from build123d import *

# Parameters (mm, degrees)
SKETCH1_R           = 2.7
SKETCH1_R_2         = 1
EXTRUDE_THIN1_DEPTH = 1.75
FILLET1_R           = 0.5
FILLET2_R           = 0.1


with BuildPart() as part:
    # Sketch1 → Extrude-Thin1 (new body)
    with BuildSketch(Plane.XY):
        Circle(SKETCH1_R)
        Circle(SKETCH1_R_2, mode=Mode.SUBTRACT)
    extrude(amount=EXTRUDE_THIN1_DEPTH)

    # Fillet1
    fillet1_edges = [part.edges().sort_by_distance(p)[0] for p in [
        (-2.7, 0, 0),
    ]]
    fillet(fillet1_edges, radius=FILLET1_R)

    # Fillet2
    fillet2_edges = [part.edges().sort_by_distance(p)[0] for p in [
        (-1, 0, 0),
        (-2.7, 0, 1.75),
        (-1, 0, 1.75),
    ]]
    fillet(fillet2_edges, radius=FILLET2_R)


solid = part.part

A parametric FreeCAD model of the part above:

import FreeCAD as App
import Part
import Sketcher

V = App.Vector


def edges_at(feature, points):
    """Names of the edges that pass closest to the given points."""
    edges = feature.Shape.Edges
    near = lambda p: min(range(len(edges)), key=lambda i: edges[i].distToShape(Part.Vertex(*p))[0])
    return sorted({f"Edge{near(p) + 1}" for p in points})

doc = App.newDocument("Part")
body = doc.addObject("PartDesign::Body", "Body")

sketch1 = body.newObject("Sketcher::SketchObject", "Sketch")
sketch1.AttachmentSupport = (doc.getObject("XY_Plane"), [""])
sketch1.MapMode = "FlatFace"
sketch1.addGeometry([
    Part.Circle(V(0, 0, 0), V(0, 0, 1), 2.7),
    Part.Circle(V(0, 0, 0), V(0, 0, 1), 1),
], False)
sketch1.addConstraint([
    Sketcher.Constraint("Coincident", 0, 3, -1, 1),
    Sketcher.Constraint("Coincident", 1, 3, -1, 1),
    Sketcher.Constraint("Diameter", 1, 2.0),
    Sketcher.Constraint("Diameter", 0, 5.4),
])
pad1 = body.newObject("PartDesign::Pad", "Pad")
pad1.Profile = sketch1
pad1.Length = 1.75
doc.recompute()

fillet = body.newObject("PartDesign::Fillet", "Fillet")
fillet.Base = (pad1, edges_at(pad1, [(-2.7, 0, 0)]))
fillet.Radius = 0.5
doc.recompute()

fillet2 = body.newObject("PartDesign::Fillet", "Fillet001")
fillet2.Base = (fillet, edges_at(fillet, [(-1, 0, 0), (-2.7, 0, 1.75), (-1, 0, 1.75)]))
fillet2.Radius = 0.1

doc.recompute()
